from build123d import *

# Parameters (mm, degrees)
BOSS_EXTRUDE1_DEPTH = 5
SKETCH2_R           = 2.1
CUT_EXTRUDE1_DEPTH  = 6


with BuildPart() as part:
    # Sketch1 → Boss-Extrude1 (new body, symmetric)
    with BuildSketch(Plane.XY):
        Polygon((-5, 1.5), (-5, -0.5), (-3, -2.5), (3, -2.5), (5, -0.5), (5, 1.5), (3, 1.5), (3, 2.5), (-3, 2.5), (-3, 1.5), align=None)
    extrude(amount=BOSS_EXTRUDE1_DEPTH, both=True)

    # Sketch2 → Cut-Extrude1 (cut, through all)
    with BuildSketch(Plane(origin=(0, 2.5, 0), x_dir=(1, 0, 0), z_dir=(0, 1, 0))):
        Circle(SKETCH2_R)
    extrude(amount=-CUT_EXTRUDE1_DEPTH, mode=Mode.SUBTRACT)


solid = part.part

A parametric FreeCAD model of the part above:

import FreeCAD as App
import Part
import Sketcher
from FreeCAD import Vector
Q = App.Units.Quantity


def add_polygon(sketch, points):
    """Adds a closed chain of lines whose ends are joined by coincident constraints."""
    first, n = sketch.GeometryCount, len(points)
    for a, b in zip(points, points[1:] + points[:1]):
        sketch.addGeometry(Part.LineSegment(App.Vector(*a, 0), App.Vector(*b, 0)), False)
    for i in range(n):
        sketch.addConstraint(Sketcher.Constraint("Coincident", first + i, 2, first + (i + 1) % n, 1))

doc = App.newDocument("Part")
body = doc.addObject("PartDesign::Body", "Body")

# Sketch on XY plane
sketch1 = body.newObject("Sketcher::SketchObject", "Sketch")
sketch1.AttachmentSupport = (doc.getObject("XY_Plane"), [""])
sketch1.MapMode = "FlatFace"
add_polygon(sketch1, [(-5, 1.5), (-5, -0.5), (-3, -2.5), (3, -2.5), (5, -0.5), (5, 1.5), (3, 1.5), (3, 2.5), (-3, 2.5), (-3, 1.5)])  # lines 0-9
sketch1.addConstraint(Sketcher.Constraint("Vertical", 0))
sketch1.addConstraint(Sketcher.Constraint("Horizontal", 2))
sketch1.addConstraint(Sketcher.Constraint("Vertical", 4))
sketch1.addConstraint(Sketcher.Constraint("Horizontal", 5))
sketch1.addConstraint(Sketcher.Constraint("Vertical", 6))
sketch1.addConstraint(Sketcher.Constraint("Horizontal", 7))
sketch1.addConstraint(Sketcher.Constraint("Vertical", 8))
sketch1.addConstraint(Sketcher.Constraint("Horizontal", 9))
sketch1.addConstraint(Sketcher.Constraint("Symmetric", 1, 2, 6, 2, -1, 1))
sketch1.addConstraint(Sketcher.Constraint("Symmetric", 0, 2, 3, 2, -2))
sketch1.addConstraint(Sketcher.Constraint("Symmetric", 5, 2, 8, 2, -2))
sketch1.addConstraint(Sketcher.Constraint("Perpendicular", 1, 3))
sketch1.addConstraint(Sketcher.Constraint("Vertical", 2, 2, 5, 2))
sketch1.addConstraint(Sketcher.Constraint("Equal", 9, 0))
sketch1.addConstraint(Sketcher.Constraint("DistanceX", 2, 1, 2, 2, Q("6 mm")))
sketch1.addConstraint(Sketcher.Constraint("DistanceX", 5, 2, 5, 1, Q("2 mm")))
sketch1.addConstraint(Sketcher.Constraint("DistanceY", 6, 1, 6, 2, Q("1 mm")))
pad1 = body.newObject("PartDesign::Pad", "Pad")
pad1.Profile = sketch1
pad1.Length = 10
pad1.Midplane = True

# Sketch on XZ plane
sketch2 = body.newObject("Sketcher::SketchObject", "Sketch001")
sketch2.AttachmentSupport = (doc.getObject("XZ_Plane"), [""])
sketch2.MapMode = "FlatFace"
sketch2.AttachmentOffset = App.Placement(Vector(0, 0, -2.5), App.Rotation())
sketch2.addGeometry(Part.Circle(Vector(0, 0, 0), Vector(0, 0, 1), 2.1), False)
sketch2.addConstraint(Sketcher.Constraint("Coincident", 0, 3, -1, 1))
sketch2.addConstraint(Sketcher.Constraint("Diameter", 0, Q("4.2 mm")))
pocket1 = body.newObject("PartDesign::Pocket", "Pocket")
pocket1.Profile = sketch2
pocket1.Type = "ThroughAll"
pocket1.Reversed = True

doc.recompute()
